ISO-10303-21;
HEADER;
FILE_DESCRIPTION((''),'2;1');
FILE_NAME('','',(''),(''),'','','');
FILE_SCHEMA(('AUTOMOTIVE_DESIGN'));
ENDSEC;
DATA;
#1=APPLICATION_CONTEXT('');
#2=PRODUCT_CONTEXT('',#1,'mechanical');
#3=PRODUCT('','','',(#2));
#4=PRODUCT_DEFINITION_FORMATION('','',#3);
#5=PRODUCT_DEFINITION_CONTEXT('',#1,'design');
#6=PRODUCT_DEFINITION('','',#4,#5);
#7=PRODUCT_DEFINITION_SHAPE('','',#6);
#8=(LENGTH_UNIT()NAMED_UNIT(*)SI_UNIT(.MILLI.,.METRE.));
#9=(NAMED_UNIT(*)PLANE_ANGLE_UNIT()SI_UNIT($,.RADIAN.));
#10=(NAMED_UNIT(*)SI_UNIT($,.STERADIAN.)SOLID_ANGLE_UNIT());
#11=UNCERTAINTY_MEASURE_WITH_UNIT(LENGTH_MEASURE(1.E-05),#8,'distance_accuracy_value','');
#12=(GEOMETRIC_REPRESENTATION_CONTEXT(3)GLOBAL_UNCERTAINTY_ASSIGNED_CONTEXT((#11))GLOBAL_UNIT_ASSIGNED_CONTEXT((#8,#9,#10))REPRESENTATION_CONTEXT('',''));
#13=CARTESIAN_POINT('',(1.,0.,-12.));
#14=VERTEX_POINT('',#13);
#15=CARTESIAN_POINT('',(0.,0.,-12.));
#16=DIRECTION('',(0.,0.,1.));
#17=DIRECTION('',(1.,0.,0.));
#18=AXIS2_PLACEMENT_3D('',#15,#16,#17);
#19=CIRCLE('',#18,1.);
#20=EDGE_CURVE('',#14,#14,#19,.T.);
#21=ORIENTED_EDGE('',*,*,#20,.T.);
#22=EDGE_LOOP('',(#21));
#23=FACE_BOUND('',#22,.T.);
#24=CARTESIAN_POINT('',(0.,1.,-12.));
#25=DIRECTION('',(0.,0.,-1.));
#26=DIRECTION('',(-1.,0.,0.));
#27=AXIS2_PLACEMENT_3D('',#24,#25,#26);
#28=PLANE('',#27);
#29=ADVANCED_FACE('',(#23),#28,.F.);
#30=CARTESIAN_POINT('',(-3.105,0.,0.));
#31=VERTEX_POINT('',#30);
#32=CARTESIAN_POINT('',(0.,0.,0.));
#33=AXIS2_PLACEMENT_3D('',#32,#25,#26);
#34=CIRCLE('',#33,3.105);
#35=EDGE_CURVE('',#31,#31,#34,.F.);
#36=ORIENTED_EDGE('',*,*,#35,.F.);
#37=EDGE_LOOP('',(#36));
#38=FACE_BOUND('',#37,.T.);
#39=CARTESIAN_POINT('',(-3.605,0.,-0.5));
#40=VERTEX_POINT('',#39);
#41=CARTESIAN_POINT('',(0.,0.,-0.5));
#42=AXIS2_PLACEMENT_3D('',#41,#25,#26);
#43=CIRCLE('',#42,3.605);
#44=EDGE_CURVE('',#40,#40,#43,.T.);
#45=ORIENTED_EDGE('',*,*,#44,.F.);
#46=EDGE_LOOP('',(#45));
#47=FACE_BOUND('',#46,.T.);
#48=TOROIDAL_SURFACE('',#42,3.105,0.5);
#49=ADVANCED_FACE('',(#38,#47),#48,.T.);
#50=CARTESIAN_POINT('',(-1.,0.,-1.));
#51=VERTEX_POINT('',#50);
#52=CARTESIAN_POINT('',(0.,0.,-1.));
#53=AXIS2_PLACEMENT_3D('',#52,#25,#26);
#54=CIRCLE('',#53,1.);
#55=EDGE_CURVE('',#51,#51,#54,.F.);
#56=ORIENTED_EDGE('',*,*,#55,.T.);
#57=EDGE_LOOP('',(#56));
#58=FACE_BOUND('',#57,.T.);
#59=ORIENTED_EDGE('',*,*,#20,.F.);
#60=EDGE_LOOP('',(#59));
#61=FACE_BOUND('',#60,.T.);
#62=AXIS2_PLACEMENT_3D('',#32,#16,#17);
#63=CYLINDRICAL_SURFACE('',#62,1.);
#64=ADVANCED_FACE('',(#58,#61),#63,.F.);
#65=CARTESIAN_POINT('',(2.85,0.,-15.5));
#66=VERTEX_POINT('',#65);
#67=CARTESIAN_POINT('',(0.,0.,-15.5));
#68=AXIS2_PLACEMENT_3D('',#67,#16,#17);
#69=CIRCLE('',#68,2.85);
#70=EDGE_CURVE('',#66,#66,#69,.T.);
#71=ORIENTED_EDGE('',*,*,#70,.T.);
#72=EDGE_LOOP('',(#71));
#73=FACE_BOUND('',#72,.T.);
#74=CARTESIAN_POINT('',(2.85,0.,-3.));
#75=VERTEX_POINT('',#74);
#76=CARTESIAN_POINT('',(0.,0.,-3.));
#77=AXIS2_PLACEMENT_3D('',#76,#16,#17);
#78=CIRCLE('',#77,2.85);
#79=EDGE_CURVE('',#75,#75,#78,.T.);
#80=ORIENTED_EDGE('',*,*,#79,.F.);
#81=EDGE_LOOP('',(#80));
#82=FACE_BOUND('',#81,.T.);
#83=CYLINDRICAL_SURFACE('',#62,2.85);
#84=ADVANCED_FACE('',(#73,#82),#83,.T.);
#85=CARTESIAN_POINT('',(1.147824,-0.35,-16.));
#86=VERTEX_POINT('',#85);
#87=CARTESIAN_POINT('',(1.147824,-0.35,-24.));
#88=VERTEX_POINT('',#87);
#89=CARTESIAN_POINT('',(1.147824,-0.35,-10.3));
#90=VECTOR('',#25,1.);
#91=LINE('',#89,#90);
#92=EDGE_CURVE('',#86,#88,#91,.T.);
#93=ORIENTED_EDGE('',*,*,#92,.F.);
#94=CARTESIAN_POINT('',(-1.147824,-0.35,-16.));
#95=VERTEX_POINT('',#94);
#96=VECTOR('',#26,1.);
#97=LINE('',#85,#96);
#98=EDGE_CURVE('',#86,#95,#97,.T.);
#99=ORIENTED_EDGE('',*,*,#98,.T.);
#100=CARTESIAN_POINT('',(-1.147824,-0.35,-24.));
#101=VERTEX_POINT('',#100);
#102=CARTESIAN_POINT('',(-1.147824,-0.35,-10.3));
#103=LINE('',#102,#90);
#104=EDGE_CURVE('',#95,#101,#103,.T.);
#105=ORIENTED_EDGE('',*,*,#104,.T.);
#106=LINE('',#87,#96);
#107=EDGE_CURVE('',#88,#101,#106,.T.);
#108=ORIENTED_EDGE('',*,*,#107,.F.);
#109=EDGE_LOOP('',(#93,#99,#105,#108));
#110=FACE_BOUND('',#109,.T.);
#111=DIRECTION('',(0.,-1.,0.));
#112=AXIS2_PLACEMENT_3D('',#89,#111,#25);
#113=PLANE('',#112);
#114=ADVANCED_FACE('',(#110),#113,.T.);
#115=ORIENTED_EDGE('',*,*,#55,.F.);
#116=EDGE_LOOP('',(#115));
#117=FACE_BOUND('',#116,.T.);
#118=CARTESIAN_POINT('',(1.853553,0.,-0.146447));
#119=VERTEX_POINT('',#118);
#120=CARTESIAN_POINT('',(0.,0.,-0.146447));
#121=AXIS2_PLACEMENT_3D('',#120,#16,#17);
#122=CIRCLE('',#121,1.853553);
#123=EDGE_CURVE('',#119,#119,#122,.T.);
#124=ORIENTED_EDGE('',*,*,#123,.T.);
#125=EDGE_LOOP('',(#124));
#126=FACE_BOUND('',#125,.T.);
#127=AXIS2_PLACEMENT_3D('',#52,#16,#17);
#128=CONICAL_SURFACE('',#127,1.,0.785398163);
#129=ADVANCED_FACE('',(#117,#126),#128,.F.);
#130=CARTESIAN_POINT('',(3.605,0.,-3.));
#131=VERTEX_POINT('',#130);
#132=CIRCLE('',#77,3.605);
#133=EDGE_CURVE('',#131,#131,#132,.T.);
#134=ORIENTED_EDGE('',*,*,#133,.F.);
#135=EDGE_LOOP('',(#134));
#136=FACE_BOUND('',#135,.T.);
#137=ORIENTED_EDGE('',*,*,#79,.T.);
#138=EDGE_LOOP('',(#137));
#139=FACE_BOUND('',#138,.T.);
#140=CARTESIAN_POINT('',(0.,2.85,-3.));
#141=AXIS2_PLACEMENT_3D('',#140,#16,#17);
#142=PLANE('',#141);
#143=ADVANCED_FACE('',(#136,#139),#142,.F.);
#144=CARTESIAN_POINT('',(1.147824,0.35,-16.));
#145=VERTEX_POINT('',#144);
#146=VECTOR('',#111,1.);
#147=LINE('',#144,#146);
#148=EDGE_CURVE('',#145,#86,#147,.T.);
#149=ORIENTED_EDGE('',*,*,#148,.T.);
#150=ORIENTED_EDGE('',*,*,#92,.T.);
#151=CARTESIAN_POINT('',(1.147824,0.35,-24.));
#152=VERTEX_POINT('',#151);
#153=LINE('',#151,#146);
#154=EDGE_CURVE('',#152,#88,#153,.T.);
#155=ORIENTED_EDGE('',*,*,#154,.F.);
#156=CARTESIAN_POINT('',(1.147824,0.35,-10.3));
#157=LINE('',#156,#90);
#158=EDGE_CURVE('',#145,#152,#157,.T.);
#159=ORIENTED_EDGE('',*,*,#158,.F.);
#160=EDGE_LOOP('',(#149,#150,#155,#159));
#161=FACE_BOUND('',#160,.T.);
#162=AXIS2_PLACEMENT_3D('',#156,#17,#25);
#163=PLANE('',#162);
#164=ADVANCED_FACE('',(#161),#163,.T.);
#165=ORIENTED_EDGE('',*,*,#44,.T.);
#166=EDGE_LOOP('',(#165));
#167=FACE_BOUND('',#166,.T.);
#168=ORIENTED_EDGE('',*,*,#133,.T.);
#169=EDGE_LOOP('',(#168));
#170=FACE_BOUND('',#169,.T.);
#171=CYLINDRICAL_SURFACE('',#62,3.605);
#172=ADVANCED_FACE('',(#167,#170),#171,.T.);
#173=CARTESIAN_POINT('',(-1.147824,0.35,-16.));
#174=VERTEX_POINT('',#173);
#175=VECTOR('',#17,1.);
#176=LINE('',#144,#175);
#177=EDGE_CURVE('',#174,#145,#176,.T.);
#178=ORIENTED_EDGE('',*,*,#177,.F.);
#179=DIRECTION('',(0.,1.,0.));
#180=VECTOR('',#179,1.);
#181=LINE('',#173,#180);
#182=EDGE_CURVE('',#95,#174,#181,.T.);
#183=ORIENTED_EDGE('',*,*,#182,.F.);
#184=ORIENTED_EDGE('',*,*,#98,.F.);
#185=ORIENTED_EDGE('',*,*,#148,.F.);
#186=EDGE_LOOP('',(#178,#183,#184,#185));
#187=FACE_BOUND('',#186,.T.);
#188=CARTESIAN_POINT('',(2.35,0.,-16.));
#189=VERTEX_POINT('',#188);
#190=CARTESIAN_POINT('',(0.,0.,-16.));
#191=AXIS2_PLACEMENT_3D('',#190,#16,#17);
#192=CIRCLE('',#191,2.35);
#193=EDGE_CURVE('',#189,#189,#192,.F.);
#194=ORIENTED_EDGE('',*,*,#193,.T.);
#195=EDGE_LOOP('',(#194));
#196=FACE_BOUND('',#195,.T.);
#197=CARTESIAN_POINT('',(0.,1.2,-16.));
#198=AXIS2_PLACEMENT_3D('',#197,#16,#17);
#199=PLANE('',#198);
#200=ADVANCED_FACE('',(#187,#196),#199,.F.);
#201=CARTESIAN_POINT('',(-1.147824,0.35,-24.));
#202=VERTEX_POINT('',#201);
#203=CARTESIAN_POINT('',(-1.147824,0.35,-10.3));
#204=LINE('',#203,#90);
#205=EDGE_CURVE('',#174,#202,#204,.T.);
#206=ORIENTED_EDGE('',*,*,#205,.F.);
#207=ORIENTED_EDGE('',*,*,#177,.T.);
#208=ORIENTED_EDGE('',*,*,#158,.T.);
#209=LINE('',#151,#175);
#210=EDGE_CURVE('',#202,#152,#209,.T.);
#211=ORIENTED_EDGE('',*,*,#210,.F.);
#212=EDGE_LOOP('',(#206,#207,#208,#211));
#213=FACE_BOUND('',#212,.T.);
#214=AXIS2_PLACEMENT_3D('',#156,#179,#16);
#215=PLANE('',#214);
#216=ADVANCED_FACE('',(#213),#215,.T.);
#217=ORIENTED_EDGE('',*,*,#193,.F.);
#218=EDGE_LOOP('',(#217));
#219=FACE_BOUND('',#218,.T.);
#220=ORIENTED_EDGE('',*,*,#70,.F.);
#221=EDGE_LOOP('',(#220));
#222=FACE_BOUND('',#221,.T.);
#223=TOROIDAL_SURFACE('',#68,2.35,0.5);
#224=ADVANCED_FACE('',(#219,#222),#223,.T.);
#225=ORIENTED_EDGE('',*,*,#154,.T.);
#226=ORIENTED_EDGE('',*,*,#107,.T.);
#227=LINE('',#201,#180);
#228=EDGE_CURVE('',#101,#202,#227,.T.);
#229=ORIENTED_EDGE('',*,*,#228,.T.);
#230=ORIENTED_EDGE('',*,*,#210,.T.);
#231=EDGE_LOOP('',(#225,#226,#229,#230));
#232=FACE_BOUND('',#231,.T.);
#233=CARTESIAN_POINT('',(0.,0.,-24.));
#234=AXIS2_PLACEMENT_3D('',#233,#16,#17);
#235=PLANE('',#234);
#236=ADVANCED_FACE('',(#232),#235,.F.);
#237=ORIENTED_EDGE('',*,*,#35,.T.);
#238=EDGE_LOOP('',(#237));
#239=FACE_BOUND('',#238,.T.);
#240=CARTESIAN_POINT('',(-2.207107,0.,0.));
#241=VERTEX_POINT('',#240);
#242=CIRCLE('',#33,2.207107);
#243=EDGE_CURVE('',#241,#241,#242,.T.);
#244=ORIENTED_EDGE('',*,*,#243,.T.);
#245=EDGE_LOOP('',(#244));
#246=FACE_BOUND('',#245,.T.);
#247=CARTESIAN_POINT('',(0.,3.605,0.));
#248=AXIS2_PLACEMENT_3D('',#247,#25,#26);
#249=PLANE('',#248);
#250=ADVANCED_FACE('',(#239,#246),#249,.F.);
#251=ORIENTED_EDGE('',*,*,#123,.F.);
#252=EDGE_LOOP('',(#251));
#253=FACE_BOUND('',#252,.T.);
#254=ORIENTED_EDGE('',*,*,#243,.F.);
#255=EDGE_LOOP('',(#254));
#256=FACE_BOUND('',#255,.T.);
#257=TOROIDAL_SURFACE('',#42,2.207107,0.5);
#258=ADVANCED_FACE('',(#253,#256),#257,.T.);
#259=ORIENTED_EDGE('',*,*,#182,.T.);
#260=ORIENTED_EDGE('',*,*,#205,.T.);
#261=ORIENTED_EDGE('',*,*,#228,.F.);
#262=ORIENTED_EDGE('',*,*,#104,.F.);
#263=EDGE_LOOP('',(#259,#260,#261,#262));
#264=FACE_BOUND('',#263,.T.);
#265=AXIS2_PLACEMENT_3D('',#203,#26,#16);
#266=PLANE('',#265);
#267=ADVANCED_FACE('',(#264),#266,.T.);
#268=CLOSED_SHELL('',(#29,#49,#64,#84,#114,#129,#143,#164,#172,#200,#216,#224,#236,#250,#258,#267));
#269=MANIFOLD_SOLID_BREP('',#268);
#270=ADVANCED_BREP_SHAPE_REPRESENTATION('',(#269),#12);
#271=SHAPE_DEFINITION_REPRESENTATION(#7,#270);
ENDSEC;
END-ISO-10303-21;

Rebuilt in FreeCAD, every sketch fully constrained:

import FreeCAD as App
import Part
import Sketcher

V = App.Vector


def edges_at(feature, points):
    """Names of the edges that pass closest to the given points."""
    edges = feature.Shape.Edges
    near = lambda p: min(range(len(edges)), key=lambda i: edges[i].distToShape(Part.Vertex(*p))[0])
    return sorted({f"Edge{near(p) + 1}" for p in points})

doc = App.newDocument("Part")
params = doc.addObject("Spreadsheet::Sheet", "Params")
for row, (alias, value) in enumerate([
    ("sketch1_width", "1 mm"),
    ("sketch1_height", "12 mm"),
    ("sketch1_height2", "8 mm"),
    ("sketch1_height3", "13 mm"),
    ("sketch1_width2", "1.2 mm"),
    ("revolution_angle", "360 deg"),
    ("sketch2_height", "0.7 mm"),
    ("pocket1_length", "8 mm"),
    ("chamfer_size", "1 mm"),
    ("fillet_radius", "0.5 mm"),
], start=1):
    params.set(f"A{row}", alias)
    params.set(f"B{row}", "=" + value)
    params.setAlias(f"B{row}", alias)

body = doc.addObject("PartDesign::Body", "Body")

sketch1 = body.newObject("Sketcher::SketchObject", "Sketch")
sketch1.AttachmentSupport = (doc.getObject("YZ_Plane"), [""])
sketch1.MapMode = "FlatFace"
sketch1.addGeometry(Part.LineSegment(V(1, 0, 0), V(1, -12, 0)), False)
sketch1.addGeometry(Part.LineSegment(V(1, -12, 0), V(0, -12, 0)), False)
sketch1.addGeometry(Part.LineSegment(V(0, -12, 0), V(0, -24, 0)), False)
sketch1.addGeometry(Part.LineSegment(V(0, -24, 0), V(1.2, -24, 0)), False)
sketch1.addGeometry(Part.LineSegment(V(1.2, -24, 0), V(1.2, -16, 0)), False)
sketch1.addGeometry(Part.LineSegment(V(1.2, -16, 0), V(2.9, -16, 0)), False)
sketch1.addGeometry(Part.LineSegment(V(2.9, -16, 0), V(2.9, -3, 0)), False)
sketch1.addGeometry(Part.LineSegment(V(2.9, -3, 0), V(3.6, -3, 0)), False)
sketch1.addGeometry(Part.LineSegment(V(3.6, -3, 0), V(3.6, 0, 0)), False)
sketch1.addGeometry(Part.LineSegment(V(3.6, 0, 0), V(1, 0, 0)), False)
sketch1.addConstraint(Sketcher.Constraint("Coincident", 0, 2, 1, 1))
sketch1.addConstraint(Sketcher.Constraint("Coincident", 1, 2, 2, 1))
sketch1.addConstraint(Sketcher.Constraint("Coincident", 2, 2, 3, 1))
sketch1.addConstraint(Sketcher.Constraint("Coincident", 3, 2, 4, 1))
sketch1.addConstraint(Sketcher.Constraint("Coincident", 4, 2, 5, 1))
sketch1.addConstraint(Sketcher.Constraint("Coincident", 5, 2, 6, 1))
sketch1.addConstraint(Sketcher.Constraint("Coincident", 6, 2, 7, 1))
sketch1.addConstraint(Sketcher.Constraint("Coincident", 7, 2, 8, 1))
sketch1.addConstraint(Sketcher.Constraint("Coincident", 8, 2, 9, 1))
sketch1.addConstraint(Sketcher.Constraint("Coincident", 9, 2, 0, 1))
sketch1.addConstraint(Sketcher.Constraint("Vertical", 0))
sketch1.addConstraint(Sketcher.Constraint("Horizontal", 1))
sketch1.addConstraint(Sketcher.Constraint("Vertical", 2))
sketch1.addConstraint(Sketcher.Constraint("Horizontal", 3))
sketch1.addConstraint(Sketcher.Constraint("Vertical", 4))
sketch1.addConstraint(Sketcher.Constraint("Horizontal", 5))
sketch1.addConstraint(Sketcher.Constraint("Vertical", 6))
sketch1.addConstraint(Sketcher.Constraint("Horizontal", 7))
sketch1.addConstraint(Sketcher.Constraint("Vertical", 8))
sketch1.addConstraint(Sketcher.Constraint("Horizontal", 9))
sketch1.addConstraint(Sketcher.Constraint("PointOnObject", 1, 2, -2))
sketch1.addConstraint(Sketcher.Constraint("PointOnObject", 8, 2, -1))
sketch1.addConstraint(Sketcher.Constraint("Equal", 0, 2))
sketch1.addConstraint(Sketcher.Constraint("DistanceX", 1, 2, 1, 1, 1.0))
sketch1.addConstraint(Sketcher.Constraint("DistanceY", 0, 2, 0, 1, 12.0))
sketch1.addConstraint(Sketcher.Constraint("DistanceY", 4, 1, 4, 2, 8.0))
sketch1.addConstraint(Sketcher.Constraint("DistanceY", 6, 1, 6, 2, 13.0))
sketch1.addConstraint(Sketcher.Constraint("DistanceX", 3, 1, 3, 2, 1.2))
sketch1.addConstraint(Sketcher.Constraint("DistanceX", 5, 1, 5, 2, 1.65))
sketch1.addConstraint(Sketcher.Constraint("DistanceX", 7, 1, 7, 2, 0.755))
sketch1.setExpression("Constraints[23]", "Params.sketch1_width")
sketch1.setExpression("Constraints[24]", "Params.sketch1_height")
sketch1.setExpression("Constraints[25]", "Params.sketch1_height2")
sketch1.setExpression("Constraints[26]", "Params.sketch1_height3")
sketch1.setExpression("Constraints[27]", "Params.sketch1_width2")
revolution = body.newObject("PartDesign::Revolution", "Revolution")
revolution.Profile = sketch1
revolution.ReferenceAxis = (sketch1, ["V_Axis"])
revolution.setExpression("Angle", "Params.revolution_angle")

sketch2 = body.newObject("Sketcher::SketchObject", "Sketch001")
sketch2.AttachmentSupport = (doc.getObject("XY_Plane"), [""])
sketch2.MapMode = "FlatFace"
sketch2.AttachmentOffset = App.Placement(V(0, 0, -24), App.Rotation())
sketch2.addGeometry(Part.LineSegment(V(2, 2, 0), V(2, -2, 0)), False)
sketch2.addGeometry(Part.LineSegment(V(2, -2, 0), V(-2, -2, 0)), False)
sketch2.addGeometry(Part.LineSegment(V(-2, -2, 0), V(-2, 2, 0)), False)
sketch2.addGeometry(Part.LineSegment(V(-2, 2, 0), V(2, 2, 0)), False)
sketch2.addGeometry(Part.LineSegment(V(-1.1, -0.3, 0), V(1.1, -0.3, 0)), False)
sketch2.addGeometry(Part.LineSegment(V(1.1, -0.3, 0), V(1.1, 0.3, 0)), False)
sketch2.addGeometry(Part.LineSegment(V(1.1, 0.3, 0), V(-1.1, 0.3, 0)), False)
sketch2.addGeometry(Part.LineSegment(V(-1.1, 0.3, 0), V(-1.1, -0.3, 0)), False)
sketch2.addConstraint(Sketcher.Constraint("Coincident", 0, 2, 1, 1))
sketch2.addConstraint(Sketcher.Constraint("Coincident", 1, 2, 2, 1))
sketch2.addConstraint(Sketcher.Constraint("Coincident", 2, 2, 3, 1))
sketch2.addConstraint(Sketcher.Constraint("Coincident", 3, 2, 0, 1))
sketch2.addConstraint(Sketcher.Constraint("Coincident", 4, 2, 5, 1))
sketch2.addConstraint(Sketcher.Constraint("Coincident", 5, 2, 6, 1))
sketch2.addConstraint(Sketcher.Constraint("Coincident", 6, 2, 7, 1))
sketch2.addConstraint(Sketcher.Constraint("Coincident", 7, 2, 4, 1))
sketch2.addConstraint(Sketcher.Constraint("Vertical", 0))
sketch2.addConstraint(Sketcher.Constraint("Horizontal", 1))
sketch2.addConstraint(Sketcher.Constraint("Vertical", 2))
sketch2.addConstraint(Sketcher.Constraint("Horizontal", 3))
sketch2.addConstraint(Sketcher.Constraint("Horizontal", 4))
sketch2.addConstraint(Sketcher.Constraint("Vertical", 5))
sketch2.addConstraint(Sketcher.Constraint("Horizontal", 6))
sketch2.addConstraint(Sketcher.Constraint("Vertical", 7))
sketch2.addConstraint(Sketcher.Constraint("Symmetric", 0, 2, 2, 2, -1, 1))
sketch2.addConstraint(Sketcher.Constraint("Symmetric", 4, 2, 6, 2, -1, 1))
sketch2.addConstraint(Sketcher.Constraint("Equal", 3, 0))
sketch2.addConstraint(Sketcher.Constraint("DistanceY", 5, 1, 5, 2, 0.7))
sketch2.addConstraint(Sketcher.Constraint("DistanceX", 1, 2, 1, 1, 4.030509))
sketch2.addConstraint(Sketcher.Constraint("DistanceX", 4, 1, 4, 2, 2.295648))
sketch2.setExpression("Constraints[19]", "Params.sketch2_height")
pocket1 = body.newObject("PartDesign::Pocket", "Pocket")
pocket1.Profile = sketch2
pocket1.setExpression("Length", "Params.pocket1_length")
pocket1.Reversed = True
doc.recompute()

chamfer = body.newObject("PartDesign::Chamfer", "Chamfer")
chamfer.Base = (pocket1, edges_at(pocket1, [(0, -1, 0)]))
chamfer.setExpression("Size", "Params.chamfer_size")
doc.recompute()

fillet = body.newObject("PartDesign::Fillet", "Fillet")
fillet.Base = (chamfer, edges_at(chamfer, [(0, -2, 0), (0, -3.605, 0), (0, -2.85, -16)]))
fillet.setExpression("Radius", "Params.fillet_radius")

doc.recompute()
